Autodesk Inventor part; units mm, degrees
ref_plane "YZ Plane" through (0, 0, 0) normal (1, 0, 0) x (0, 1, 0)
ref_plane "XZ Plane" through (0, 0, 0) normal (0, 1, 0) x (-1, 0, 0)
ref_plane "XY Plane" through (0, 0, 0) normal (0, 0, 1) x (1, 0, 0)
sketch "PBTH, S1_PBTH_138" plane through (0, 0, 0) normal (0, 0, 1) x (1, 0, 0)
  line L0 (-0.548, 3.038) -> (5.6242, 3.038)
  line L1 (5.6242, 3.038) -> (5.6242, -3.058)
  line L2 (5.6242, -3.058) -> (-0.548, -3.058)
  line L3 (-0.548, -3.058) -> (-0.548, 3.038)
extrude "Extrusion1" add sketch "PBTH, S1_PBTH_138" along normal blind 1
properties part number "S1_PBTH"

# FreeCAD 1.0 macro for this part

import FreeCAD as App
import Part
import Sketcher

V = App.Vector
Q = App.Units.Quantity


def add_polygon(sketch, points):
    """Adds a closed chain of lines whose ends are joined by coincident constraints."""
    first, n = sketch.GeometryCount, len(points)
    for a, b in zip(points, points[1:] + points[:1]):
        sketch.addGeometry(Part.LineSegment(App.Vector(*a, 0), App.Vector(*b, 0)), False)
    for i in range(n):
        sketch.addConstraint(Sketcher.Constraint("Coincident", first + i, 2, first + (i + 1) % n, 1))

doc = App.newDocument("Part")
body = doc.addObject("PartDesign::Body", "Body")

# Sketch on XY plane
sketch1 = body.newObject("Sketcher::SketchObject", "Sketch")
sketch1.AttachmentSupport = (doc.getObject("XY_Plane"), [""])
sketch1.MapMode = "FlatFace"
add_polygon(sketch1, [(6, 3), (-1, 3), (-1, -3), (6, -3)])  # lines 0-3
sketch1.addConstraint([
    Sketcher.Constraint("Horizontal", 0),
    Sketcher.Constraint("Vertical", 1),
    Sketcher.Constraint("Horizontal", 2),
    Sketcher.Constraint("Vertical", 3),
    Sketcher.Constraint("DistanceY", 1, 2, 1, 1, Q("0.24 in")),
    Sketcher.Constraint("DistanceX", 0, 2, 0, 1, Q("0.243 in")),
    Sketcher.Constraint("DistanceY", -1, 1, 0, 2, Q("0.1196 in")),
    Sketcher.Constraint("DistanceX", 0, 2, -1, 1, Q("0.548 mm")),
])
pad1 = body.newObject("PartDesign::Pad", "Pad")
pad1.Profile = sketch1
pad1.Length = 1

doc.recompute()
